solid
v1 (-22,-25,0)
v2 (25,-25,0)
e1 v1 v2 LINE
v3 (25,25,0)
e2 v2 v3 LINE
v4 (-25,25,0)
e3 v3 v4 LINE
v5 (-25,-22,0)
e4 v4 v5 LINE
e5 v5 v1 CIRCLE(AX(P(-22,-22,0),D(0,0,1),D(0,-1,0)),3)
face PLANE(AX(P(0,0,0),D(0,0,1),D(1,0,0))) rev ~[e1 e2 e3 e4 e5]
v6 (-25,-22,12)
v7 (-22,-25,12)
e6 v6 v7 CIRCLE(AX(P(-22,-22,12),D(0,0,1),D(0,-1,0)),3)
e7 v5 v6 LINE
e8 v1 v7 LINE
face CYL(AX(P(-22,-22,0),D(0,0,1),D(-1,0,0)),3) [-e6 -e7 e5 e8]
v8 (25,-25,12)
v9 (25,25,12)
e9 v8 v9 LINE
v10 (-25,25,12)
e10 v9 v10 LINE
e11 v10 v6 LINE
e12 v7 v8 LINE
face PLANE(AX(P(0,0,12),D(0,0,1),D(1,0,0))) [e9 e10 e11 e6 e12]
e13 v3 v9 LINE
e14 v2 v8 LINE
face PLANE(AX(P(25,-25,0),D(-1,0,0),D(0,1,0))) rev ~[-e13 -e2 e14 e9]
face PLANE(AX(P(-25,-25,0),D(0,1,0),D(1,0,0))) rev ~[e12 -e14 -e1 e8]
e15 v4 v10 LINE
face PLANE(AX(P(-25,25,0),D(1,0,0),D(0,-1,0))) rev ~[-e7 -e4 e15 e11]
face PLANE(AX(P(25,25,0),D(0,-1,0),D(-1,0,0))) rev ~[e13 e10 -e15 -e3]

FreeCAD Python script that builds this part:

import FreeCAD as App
import Part
import Sketcher
from FreeCAD import Vector
Q = App.Units.Quantity


def edges_at(feature, points):
    """Names of the edges that pass closest to the given points."""
    edges = feature.Shape.Edges
    near = lambda p: min(range(len(edges)), key=lambda i: edges[i].distToShape(Part.Vertex(*p))[0])
    return sorted({f"Edge{near(p) + 1}" for p in points})


def add_polygon(sketch, points):
    """Adds a closed chain of lines whose ends are joined by coincident constraints."""
    first, n = sketch.GeometryCount, len(points)
    for a, b in zip(points, points[1:] + points[:1]):
        sketch.addGeometry(Part.LineSegment(App.Vector(*a, 0), App.Vector(*b, 0)), False)
    for i in range(n):
        sketch.addConstraint(Sketcher.Constraint("Coincident", first + i, 2, first + (i + 1) % n, 1))

doc = App.newDocument("Part")
body = doc.addObject("PartDesign::Body", "Body")

sketch1 = body.newObject("Sketcher::SketchObject", "Sketch")
sketch1.AttachmentSupport = (doc.getObject("XY_Plane"), [""])
sketch1.MapMode = "FlatFace"
add_polygon(sketch1, [(-25, 25), (-25, -25), (25, -25), (25, 25)])
sketch1.addConstraint([
    Sketcher.Constraint("Vertical", 0),
    Sketcher.Constraint("Horizontal", 1),
    Sketcher.Constraint("Vertical", 2),
    Sketcher.Constraint("Horizontal", 3),
    Sketcher.Constraint("Symmetric", 0, 2, 2, 2, -1, 1),
    Sketcher.Constraint("Equal", 3, 0),
    Sketcher.Constraint("DistanceX", 1, 1, 1, 2, Q("50 mm")),
])
pad1 = body.newObject("PartDesign::Pad", "Pad")
pad1.Profile = sketch1
pad1.Length = 12
doc.recompute()

fillet = body.newObject("PartDesign::Fillet", "Fillet")
fillet.Base = (pad1, edges_at(pad1, [(-25, -25, 6)]))
fillet.Radius = 3

doc.recompute()
